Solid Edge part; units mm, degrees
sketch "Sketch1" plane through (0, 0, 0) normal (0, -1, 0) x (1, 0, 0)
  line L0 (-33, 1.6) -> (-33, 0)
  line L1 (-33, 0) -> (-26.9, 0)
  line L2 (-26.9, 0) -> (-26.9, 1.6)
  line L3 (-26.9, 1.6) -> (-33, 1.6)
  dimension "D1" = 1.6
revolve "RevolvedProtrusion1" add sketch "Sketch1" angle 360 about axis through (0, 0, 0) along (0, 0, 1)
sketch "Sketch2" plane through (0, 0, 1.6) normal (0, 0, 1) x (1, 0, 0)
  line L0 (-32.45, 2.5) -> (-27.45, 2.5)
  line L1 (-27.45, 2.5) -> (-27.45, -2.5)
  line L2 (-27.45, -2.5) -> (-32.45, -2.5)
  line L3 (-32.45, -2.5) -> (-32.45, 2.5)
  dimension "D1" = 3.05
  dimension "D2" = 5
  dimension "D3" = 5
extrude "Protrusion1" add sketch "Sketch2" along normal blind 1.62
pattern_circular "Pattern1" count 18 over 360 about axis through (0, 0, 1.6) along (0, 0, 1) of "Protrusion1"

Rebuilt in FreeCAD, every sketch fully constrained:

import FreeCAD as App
import Part
import Sketcher

V = App.Vector
Q = App.Units.Quantity


def add_polygon(sketch, points):
    """Adds a closed chain of lines whose ends are joined by coincident constraints."""
    first, n = sketch.GeometryCount, len(points)
    for a, b in zip(points, points[1:] + points[:1]):
        sketch.addGeometry(Part.LineSegment(App.Vector(*a, 0), App.Vector(*b, 0)), False)
    for i in range(n):
        sketch.addConstraint(Sketcher.Constraint("Coincident", first + i, 2, first + (i + 1) % n, 1))

doc = App.newDocument("Part")
params = doc.addObject("Spreadsheet::Sheet", "Params")
for row, (alias, value) in enumerate([
    ("sketch1_width", "6.1 mm"),
    ("sketch1_height", "1.6 mm"),
    ("revolution_angle", "360 deg"),
    ("sketch2_width", "5 mm"),
    ("pad1_length", "1.62 mm"),
], start=1):
    params.set(f"A{row}", alias)
    params.set(f"B{row}", "=" + value)
    params.setAlias(f"B{row}", alias)

body = doc.addObject("PartDesign::Body", "Body")

sketch1 = body.newObject("Sketcher::SketchObject", "Sketch")
sketch1.AttachmentSupport = (doc.getObject("XZ_Plane"), [""])
sketch1.MapMode = "FlatFace"
add_polygon(sketch1, [(-26.9, 1.6), (-33, 1.6), (-33, 0), (-26.9, 0)])
sketch1.addConstraint([
    Sketcher.Constraint("Horizontal", 0),
    Sketcher.Constraint("Vertical", 1),
    Sketcher.Constraint("Horizontal", 2),
    Sketcher.Constraint("Vertical", 3),
    Sketcher.Constraint("PointOnObject", 1, 2, -1),
    Sketcher.Constraint("DistanceX", 0, 2, -1, 1, Q("33 mm")),
    Sketcher.Constraint("DistanceX", 0, 2, 0, 1, Q("6.1 mm")),
    Sketcher.Constraint("DistanceY", 1, 2, 1, 1, Q("1.6 mm")),
])
sketch1.setExpression("Constraints[10]", "Params.sketch1_width")
sketch1.setExpression("Constraints[11]", "Params.sketch1_height")
revolution = body.newObject("PartDesign::Revolution", "Revolution")
revolution.Profile = sketch1
revolution.ReferenceAxis = (sketch1, ["V_Axis"])
revolution.setExpression("Angle", "Params.revolution_angle")

sketch2 = body.newObject("Sketcher::SketchObject", "Sketch001")
sketch2.AttachmentSupport = (doc.getObject("XY_Plane"), [""])
sketch2.MapMode = "FlatFace"
sketch2.AttachmentOffset = App.Placement(V(0, 0, 1.6), App.Rotation())
add_polygon(sketch2, [(-27.45, 2.5), (-32.45, 2.5), (-32.45, -2.5), (-27.45, -2.5)])
sketch2.addConstraint([
    Sketcher.Constraint("Horizontal", 0),
    Sketcher.Constraint("Vertical", 1),
    Sketcher.Constraint("Horizontal", 2),
    Sketcher.Constraint("Vertical", 3),
    Sketcher.Constraint("Equal", 2, 1),
    Sketcher.Constraint("DistanceX", 0, 2, 0, 1, Q("5 mm")),
    Sketcher.Constraint("DistanceX", 0, 2, -1, 1, Q("32.45 mm")),
    Sketcher.Constraint("DistanceY", -1, 1, 0, 2, Q("2.5 mm")),
])
sketch2.setExpression("Constraints[9]", "Params.sketch2_width")
pad1 = body.newObject("PartDesign::Pad", "Pad")
pad1.Profile = sketch2
pad1.setExpression("Length", "Params.pad1_length")
doc.recompute()

polarpattern = body.newObject("PartDesign::PolarPattern", "PolarPattern")
polarpattern.Originals = [pad1]
polarpattern.Axis = (doc.getObject("Z_Axis"), [""])
polarpattern.Angle = 360
polarpattern.Occurrences = 18
body.Tip = polarpattern

doc.recompute()
